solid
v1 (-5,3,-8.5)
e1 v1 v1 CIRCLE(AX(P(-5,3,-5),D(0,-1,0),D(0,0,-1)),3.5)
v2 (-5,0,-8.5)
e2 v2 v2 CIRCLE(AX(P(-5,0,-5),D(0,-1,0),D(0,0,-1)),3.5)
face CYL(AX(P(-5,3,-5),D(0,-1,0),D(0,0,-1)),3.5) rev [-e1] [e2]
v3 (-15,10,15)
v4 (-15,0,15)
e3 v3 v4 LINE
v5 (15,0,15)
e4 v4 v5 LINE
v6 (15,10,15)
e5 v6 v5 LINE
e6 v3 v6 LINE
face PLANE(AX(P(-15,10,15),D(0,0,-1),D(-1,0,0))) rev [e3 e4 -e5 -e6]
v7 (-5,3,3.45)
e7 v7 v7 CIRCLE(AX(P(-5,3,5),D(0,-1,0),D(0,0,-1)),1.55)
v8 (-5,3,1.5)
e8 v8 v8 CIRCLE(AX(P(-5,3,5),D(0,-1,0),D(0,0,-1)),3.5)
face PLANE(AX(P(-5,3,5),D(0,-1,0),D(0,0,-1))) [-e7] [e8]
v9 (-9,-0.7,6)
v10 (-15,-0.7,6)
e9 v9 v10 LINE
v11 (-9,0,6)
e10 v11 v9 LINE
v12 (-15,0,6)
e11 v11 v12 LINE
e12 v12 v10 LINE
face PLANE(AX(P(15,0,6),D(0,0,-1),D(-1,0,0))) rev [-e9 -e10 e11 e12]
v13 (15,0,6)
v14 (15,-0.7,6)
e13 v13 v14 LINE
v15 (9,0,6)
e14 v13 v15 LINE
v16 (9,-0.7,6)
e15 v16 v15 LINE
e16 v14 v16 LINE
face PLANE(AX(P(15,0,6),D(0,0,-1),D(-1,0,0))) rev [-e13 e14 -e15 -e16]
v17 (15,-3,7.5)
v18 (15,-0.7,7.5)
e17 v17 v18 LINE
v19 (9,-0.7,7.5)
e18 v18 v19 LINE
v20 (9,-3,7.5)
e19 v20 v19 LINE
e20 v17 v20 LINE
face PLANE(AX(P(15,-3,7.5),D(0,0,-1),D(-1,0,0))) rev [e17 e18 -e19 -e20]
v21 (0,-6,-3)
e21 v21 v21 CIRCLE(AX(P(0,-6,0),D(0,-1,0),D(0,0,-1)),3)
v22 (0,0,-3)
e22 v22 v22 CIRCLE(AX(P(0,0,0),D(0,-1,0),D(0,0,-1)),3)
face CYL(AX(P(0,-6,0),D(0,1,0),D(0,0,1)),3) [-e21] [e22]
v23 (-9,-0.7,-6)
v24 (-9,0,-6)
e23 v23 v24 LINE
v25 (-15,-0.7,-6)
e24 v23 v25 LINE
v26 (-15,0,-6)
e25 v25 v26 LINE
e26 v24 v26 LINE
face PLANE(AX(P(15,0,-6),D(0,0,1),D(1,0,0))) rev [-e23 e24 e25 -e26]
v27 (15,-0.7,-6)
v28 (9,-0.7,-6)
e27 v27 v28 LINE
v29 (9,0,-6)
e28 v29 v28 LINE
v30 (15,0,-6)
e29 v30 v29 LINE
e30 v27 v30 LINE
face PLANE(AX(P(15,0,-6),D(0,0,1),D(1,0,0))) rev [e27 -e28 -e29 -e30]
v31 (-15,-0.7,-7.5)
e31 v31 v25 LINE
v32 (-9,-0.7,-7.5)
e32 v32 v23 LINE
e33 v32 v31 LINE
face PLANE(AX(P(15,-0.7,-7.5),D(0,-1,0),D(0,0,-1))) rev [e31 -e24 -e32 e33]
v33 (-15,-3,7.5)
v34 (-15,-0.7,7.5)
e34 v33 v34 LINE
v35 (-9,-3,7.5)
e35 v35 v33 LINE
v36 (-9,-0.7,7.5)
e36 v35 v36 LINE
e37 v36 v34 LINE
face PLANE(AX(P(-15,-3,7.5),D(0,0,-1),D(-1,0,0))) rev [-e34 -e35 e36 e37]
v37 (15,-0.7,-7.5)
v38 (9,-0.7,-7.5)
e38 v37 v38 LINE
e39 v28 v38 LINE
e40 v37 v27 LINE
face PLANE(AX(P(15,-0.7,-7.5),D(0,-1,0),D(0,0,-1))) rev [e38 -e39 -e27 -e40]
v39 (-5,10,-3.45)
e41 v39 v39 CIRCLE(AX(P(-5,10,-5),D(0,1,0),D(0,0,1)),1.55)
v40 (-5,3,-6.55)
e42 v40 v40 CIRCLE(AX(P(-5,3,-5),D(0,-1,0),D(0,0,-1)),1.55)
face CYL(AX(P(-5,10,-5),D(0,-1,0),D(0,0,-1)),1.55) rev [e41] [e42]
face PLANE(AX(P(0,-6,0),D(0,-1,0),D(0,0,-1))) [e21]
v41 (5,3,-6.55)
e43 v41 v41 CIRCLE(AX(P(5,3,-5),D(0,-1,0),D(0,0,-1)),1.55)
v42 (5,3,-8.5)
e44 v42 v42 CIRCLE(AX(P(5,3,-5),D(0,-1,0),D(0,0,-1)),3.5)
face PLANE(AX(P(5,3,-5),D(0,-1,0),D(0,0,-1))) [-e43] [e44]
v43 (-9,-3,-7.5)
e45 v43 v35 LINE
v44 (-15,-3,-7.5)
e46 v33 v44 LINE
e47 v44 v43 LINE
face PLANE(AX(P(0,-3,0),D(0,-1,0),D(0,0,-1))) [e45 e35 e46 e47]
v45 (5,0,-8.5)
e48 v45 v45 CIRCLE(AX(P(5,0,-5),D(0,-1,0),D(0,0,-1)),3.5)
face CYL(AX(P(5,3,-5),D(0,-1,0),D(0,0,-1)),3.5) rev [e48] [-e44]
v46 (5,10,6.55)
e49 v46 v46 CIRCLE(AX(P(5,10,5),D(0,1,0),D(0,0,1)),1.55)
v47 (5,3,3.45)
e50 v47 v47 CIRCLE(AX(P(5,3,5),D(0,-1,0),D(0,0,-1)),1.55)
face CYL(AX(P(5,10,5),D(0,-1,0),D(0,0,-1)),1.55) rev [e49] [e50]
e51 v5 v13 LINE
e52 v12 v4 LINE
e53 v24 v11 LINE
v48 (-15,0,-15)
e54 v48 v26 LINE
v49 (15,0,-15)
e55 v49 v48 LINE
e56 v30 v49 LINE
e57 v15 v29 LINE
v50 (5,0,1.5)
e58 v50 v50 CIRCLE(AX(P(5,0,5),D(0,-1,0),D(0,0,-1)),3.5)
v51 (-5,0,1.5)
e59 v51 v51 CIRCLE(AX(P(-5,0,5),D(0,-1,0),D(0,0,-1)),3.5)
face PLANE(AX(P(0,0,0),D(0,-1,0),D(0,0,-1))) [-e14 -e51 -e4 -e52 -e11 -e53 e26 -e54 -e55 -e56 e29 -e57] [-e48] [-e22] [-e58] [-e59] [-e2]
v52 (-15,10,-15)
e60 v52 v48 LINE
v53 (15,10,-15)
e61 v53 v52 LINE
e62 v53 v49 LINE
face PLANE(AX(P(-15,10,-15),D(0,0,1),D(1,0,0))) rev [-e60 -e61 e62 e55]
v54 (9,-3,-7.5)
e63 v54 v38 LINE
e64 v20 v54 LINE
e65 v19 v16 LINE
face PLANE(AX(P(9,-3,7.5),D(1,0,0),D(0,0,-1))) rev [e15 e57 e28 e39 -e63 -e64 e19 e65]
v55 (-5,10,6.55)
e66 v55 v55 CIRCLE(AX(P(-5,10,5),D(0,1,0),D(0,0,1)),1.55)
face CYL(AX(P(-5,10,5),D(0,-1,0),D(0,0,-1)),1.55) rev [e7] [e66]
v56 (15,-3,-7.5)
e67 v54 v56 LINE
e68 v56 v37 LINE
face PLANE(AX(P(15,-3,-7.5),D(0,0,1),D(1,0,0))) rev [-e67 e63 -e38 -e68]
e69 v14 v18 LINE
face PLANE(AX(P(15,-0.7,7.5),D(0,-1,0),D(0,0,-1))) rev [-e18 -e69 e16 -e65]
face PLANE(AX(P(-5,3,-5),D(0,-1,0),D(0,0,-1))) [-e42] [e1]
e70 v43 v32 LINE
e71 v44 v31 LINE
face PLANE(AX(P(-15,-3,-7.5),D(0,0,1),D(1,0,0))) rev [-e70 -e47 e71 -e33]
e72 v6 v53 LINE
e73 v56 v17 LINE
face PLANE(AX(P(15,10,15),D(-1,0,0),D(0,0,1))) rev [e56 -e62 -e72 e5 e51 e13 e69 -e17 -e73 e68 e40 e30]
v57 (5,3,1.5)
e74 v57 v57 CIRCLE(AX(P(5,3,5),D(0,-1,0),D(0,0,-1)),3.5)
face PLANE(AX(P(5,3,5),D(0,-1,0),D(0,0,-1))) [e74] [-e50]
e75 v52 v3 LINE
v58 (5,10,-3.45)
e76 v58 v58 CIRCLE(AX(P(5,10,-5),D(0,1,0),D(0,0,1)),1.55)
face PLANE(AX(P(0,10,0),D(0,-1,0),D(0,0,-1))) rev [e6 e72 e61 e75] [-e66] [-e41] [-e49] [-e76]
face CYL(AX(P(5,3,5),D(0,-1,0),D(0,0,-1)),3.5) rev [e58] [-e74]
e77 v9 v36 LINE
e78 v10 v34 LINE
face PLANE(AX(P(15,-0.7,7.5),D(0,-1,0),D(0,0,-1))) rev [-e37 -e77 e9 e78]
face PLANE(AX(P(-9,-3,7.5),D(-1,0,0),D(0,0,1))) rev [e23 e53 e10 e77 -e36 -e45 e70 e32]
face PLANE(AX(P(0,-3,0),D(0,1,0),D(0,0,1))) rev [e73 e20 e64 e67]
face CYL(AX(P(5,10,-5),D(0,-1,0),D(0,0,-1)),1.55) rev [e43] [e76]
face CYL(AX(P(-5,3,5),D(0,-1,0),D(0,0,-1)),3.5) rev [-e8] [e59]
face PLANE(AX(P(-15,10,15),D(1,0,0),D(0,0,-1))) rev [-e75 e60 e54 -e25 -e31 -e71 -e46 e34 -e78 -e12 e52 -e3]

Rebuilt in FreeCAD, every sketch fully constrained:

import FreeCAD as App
import Part
import Sketcher

V = App.Vector
Q = App.Units.Quantity


def add_polygon(sketch, points):
    """Adds a closed chain of lines whose ends are joined by coincident constraints."""
    first, n = sketch.GeometryCount, len(points)
    for a, b in zip(points, points[1:] + points[:1]):
        sketch.addGeometry(Part.LineSegment(App.Vector(*a, 0), App.Vector(*b, 0)), False)
    for i in range(n):
        sketch.addConstraint(Sketcher.Constraint("Coincident", first + i, 2, first + (i + 1) % n, 1))

doc = App.newDocument("Part")
body = doc.addObject("PartDesign::Body", "Body")

sketch1 = body.newObject("Sketcher::SketchObject", "Sketch")
sketch1.AttachmentSupport = (doc.getObject("XZ_Plane"), [""])
sketch1.MapMode = "FlatFace"
add_polygon(sketch1, [(-15, -15), (-15, 15), (15, 15), (15, -15)])
sketch1.addGeometry(Part.Circle(V(-5, 5, 0), V(0, 0, 1), 1.6), False)
sketch1.addGeometry(Part.Circle(V(5, 5, 0), V(0, 0, 1), 1.6), False)
sketch1.addGeometry(Part.Circle(V(-5, -5, 0), V(0, 0, 1), 1.6), False)
sketch1.addGeometry(Part.Circle(V(5, -5, 0), V(0, 0, 1), 1.6), False)
sketch1.addConstraint([
    Sketcher.Constraint("Vertical", 0),
    Sketcher.Constraint("Horizontal", 1),
    Sketcher.Constraint("Vertical", 2),
    Sketcher.Constraint("Horizontal", 3),
    Sketcher.Constraint("Equal", 4, 5),
    Sketcher.Constraint("Equal", 5, 6),
    Sketcher.Constraint("Equal", 6, 7),
    Sketcher.Constraint("Symmetric", 5, 3, 6, 3, -1, 1),
    Sketcher.Constraint("Symmetric", 4, 3, 7, 3, -1, 1),
    Sketcher.Constraint("Symmetric", 0, 2, 2, 2, -1, 1),
    Sketcher.Constraint("Symmetric", 4, 3, 5, 3, -2),
    Sketcher.Constraint("Equal", 3, 0),
    Sketcher.Constraint("Diameter", 4, Q("3.1 mm")),
    Sketcher.Constraint("DistanceX", 1, 1, 1, 2, Q("30 mm")),
    Sketcher.Constraint("DistanceX", 4, 3, -1, 1, Q("5 mm")),
    Sketcher.Constraint("DistanceY", -1, 1, 4, 3, Q("5 mm")),
])
pad1 = body.newObject("PartDesign::Pad", "Pad")
pad1.Profile = sketch1
pad1.Length = 10
pad1.Reversed = True

sketch2 = body.newObject("Sketcher::SketchObject", "Sketch001")
sketch2.AttachmentSupport = (doc.getObject("XZ_Plane"), [""])
sketch2.MapMode = "FlatFace"
sketch2.addGeometry([
    Part.Circle(V(-5, 5, 0), V(0, 0, 1), 3.5),
    Part.Circle(V(5, 5, 0), V(0, 0, 1), 3.5),
    Part.Circle(V(5, -5, 0), V(0, 0, 1), 3.5),
    Part.Circle(V(-5, -5, 0), V(0, 0, 1), 3.5),
], False)
sketch2.addConstraint([
    Sketcher.Constraint("Equal", 0, 1),
    Sketcher.Constraint("Equal", 1, 2),
    Sketcher.Constraint("Equal", 2, 3),
    Sketcher.Constraint("Symmetric", 0, 3, 2, 3, -1, 1),
    Sketcher.Constraint("Symmetric", 1, 3, 3, 3, -1, 1),
    Sketcher.Constraint("Symmetric", 0, 3, 1, 3, -2),
    Sketcher.Constraint("Diameter", 0, Q("7 mm")),
    Sketcher.Constraint("DistanceX", 0, 3, -1, 1, Q("5 mm")),
    Sketcher.Constraint("DistanceY", -1, 1, 0, 3, Q("5 mm")),
])
pocket1 = body.newObject("PartDesign::Pocket", "Pocket")
pocket1.Profile = sketch2
pocket1.Length = 3

sketch3 = body.newObject("Sketcher::SketchObject", "Sketch002")
sketch3.AttachmentSupport = (doc.getObject("XZ_Plane"), [""])
sketch3.MapMode = "FlatFace"
add_polygon(sketch3, [(-15, 8), (-15, -8), (-9, -8), (-9, 8)])
add_polygon(sketch3, [(9, 8), (9, -8), (15, -8), (15, 8)])
sketch3.addConstraint([
    Sketcher.Constraint("Vertical", 0),
    Sketcher.Constraint("Horizontal", 1),
    Sketcher.Constraint("Vertical", 2),
    Sketcher.Constraint("Horizontal", 3),
    Sketcher.Constraint("Vertical", 4),
    Sketcher.Constraint("Horizontal", 5),
    Sketcher.Constraint("Vertical", 6),
    Sketcher.Constraint("Horizontal", 7),
    Sketcher.Constraint("Symmetric", 2, 2, 4, 2, -1, 1),
    Sketcher.Constraint("Symmetric", 0, 2, 6, 2, -1, 1),
    Sketcher.Constraint("Horizontal", 1, 2, 4, 2),
    Sketcher.Constraint("DistanceX", 1, 1, 1, 2, Q("6 mm")),
    Sketcher.Constraint("DistanceY", 0, 2, 0, 1, Q("15 mm")),
    Sketcher.Constraint("DistanceX", 0, 2, -1, 1, Q("15 mm")),
])
pad2 = body.newObject("PartDesign::Pad", "Pad001")
pad2.Profile = sketch3
pad2.Length = 3

sketch4 = body.newObject("Sketcher::SketchObject", "Sketch003")
sketch4.AttachmentSupport = (doc.getObject("YZ_Plane"), [""])
sketch4.MapMode = "FlatFace"
sketch4.AttachmentOffset = App.Placement(V(0, 0, -15), App.Rotation())
add_polygon(sketch4, [(0, -7.5), (-0.7, -7.5), (-0.7, -6), (0, -6)])
add_polygon(sketch4, [(0, 6), (-0.7, 6), (-0.7, 7.5), (0, 7.5)])
sketch4.addConstraint([
    Sketcher.Constraint("Horizontal", 0),
    Sketcher.Constraint("Vertical", 1),
    Sketcher.Constraint("Horizontal", 2),
    Sketcher.Constraint("Vertical", 3),
    Sketcher.Constraint("Horizontal", 4),
    Sketcher.Constraint("Vertical", 5),
    Sketcher.Constraint("Horizontal", 6),
    Sketcher.Constraint("Vertical", 7),
    Sketcher.Constraint("Symmetric", 3, 2, 6, 2, -1, 1),
    Sketcher.Constraint("Symmetric", 1, 2, 4, 2, -1),
    Sketcher.Constraint("PointOnObject", 2, 2, -2),
    Sketcher.Constraint("DistanceX", 0, 2, 0, 1, Q("0.7 mm")),
    Sketcher.Constraint("DistanceY", 1, 1, 1, 2, Q("1.5 mm")),
    Sketcher.Constraint("DistanceY", 1, 2, -1, 1, Q("6 mm")),
])
pocket2 = body.newObject("PartDesign::Pocket", "Pocket001")
pocket2.Profile = sketch4
pocket2.Type = "ThroughAll"
pocket2.Reversed = True

sketch5 = body.newObject("Sketcher::SketchObject", "Sketch004")
sketch5.AttachmentSupport = (doc.getObject("XZ_Plane"), [""])
sketch5.MapMode = "FlatFace"
sketch5.addGeometry(Part.Circle(V(0, 0, 0), V(0, 0, 1), 3), False)
sketch5.addConstraint([
    Sketcher.Constraint("Coincident", 0, 3, -1, 1),
    Sketcher.Constraint("Diameter", 0, Q("6 mm")),
])
pad3 = body.newObject("PartDesign::Pad", "Pad002")
pad3.Profile = sketch5
pad3.Length = 6

doc.recompute()
